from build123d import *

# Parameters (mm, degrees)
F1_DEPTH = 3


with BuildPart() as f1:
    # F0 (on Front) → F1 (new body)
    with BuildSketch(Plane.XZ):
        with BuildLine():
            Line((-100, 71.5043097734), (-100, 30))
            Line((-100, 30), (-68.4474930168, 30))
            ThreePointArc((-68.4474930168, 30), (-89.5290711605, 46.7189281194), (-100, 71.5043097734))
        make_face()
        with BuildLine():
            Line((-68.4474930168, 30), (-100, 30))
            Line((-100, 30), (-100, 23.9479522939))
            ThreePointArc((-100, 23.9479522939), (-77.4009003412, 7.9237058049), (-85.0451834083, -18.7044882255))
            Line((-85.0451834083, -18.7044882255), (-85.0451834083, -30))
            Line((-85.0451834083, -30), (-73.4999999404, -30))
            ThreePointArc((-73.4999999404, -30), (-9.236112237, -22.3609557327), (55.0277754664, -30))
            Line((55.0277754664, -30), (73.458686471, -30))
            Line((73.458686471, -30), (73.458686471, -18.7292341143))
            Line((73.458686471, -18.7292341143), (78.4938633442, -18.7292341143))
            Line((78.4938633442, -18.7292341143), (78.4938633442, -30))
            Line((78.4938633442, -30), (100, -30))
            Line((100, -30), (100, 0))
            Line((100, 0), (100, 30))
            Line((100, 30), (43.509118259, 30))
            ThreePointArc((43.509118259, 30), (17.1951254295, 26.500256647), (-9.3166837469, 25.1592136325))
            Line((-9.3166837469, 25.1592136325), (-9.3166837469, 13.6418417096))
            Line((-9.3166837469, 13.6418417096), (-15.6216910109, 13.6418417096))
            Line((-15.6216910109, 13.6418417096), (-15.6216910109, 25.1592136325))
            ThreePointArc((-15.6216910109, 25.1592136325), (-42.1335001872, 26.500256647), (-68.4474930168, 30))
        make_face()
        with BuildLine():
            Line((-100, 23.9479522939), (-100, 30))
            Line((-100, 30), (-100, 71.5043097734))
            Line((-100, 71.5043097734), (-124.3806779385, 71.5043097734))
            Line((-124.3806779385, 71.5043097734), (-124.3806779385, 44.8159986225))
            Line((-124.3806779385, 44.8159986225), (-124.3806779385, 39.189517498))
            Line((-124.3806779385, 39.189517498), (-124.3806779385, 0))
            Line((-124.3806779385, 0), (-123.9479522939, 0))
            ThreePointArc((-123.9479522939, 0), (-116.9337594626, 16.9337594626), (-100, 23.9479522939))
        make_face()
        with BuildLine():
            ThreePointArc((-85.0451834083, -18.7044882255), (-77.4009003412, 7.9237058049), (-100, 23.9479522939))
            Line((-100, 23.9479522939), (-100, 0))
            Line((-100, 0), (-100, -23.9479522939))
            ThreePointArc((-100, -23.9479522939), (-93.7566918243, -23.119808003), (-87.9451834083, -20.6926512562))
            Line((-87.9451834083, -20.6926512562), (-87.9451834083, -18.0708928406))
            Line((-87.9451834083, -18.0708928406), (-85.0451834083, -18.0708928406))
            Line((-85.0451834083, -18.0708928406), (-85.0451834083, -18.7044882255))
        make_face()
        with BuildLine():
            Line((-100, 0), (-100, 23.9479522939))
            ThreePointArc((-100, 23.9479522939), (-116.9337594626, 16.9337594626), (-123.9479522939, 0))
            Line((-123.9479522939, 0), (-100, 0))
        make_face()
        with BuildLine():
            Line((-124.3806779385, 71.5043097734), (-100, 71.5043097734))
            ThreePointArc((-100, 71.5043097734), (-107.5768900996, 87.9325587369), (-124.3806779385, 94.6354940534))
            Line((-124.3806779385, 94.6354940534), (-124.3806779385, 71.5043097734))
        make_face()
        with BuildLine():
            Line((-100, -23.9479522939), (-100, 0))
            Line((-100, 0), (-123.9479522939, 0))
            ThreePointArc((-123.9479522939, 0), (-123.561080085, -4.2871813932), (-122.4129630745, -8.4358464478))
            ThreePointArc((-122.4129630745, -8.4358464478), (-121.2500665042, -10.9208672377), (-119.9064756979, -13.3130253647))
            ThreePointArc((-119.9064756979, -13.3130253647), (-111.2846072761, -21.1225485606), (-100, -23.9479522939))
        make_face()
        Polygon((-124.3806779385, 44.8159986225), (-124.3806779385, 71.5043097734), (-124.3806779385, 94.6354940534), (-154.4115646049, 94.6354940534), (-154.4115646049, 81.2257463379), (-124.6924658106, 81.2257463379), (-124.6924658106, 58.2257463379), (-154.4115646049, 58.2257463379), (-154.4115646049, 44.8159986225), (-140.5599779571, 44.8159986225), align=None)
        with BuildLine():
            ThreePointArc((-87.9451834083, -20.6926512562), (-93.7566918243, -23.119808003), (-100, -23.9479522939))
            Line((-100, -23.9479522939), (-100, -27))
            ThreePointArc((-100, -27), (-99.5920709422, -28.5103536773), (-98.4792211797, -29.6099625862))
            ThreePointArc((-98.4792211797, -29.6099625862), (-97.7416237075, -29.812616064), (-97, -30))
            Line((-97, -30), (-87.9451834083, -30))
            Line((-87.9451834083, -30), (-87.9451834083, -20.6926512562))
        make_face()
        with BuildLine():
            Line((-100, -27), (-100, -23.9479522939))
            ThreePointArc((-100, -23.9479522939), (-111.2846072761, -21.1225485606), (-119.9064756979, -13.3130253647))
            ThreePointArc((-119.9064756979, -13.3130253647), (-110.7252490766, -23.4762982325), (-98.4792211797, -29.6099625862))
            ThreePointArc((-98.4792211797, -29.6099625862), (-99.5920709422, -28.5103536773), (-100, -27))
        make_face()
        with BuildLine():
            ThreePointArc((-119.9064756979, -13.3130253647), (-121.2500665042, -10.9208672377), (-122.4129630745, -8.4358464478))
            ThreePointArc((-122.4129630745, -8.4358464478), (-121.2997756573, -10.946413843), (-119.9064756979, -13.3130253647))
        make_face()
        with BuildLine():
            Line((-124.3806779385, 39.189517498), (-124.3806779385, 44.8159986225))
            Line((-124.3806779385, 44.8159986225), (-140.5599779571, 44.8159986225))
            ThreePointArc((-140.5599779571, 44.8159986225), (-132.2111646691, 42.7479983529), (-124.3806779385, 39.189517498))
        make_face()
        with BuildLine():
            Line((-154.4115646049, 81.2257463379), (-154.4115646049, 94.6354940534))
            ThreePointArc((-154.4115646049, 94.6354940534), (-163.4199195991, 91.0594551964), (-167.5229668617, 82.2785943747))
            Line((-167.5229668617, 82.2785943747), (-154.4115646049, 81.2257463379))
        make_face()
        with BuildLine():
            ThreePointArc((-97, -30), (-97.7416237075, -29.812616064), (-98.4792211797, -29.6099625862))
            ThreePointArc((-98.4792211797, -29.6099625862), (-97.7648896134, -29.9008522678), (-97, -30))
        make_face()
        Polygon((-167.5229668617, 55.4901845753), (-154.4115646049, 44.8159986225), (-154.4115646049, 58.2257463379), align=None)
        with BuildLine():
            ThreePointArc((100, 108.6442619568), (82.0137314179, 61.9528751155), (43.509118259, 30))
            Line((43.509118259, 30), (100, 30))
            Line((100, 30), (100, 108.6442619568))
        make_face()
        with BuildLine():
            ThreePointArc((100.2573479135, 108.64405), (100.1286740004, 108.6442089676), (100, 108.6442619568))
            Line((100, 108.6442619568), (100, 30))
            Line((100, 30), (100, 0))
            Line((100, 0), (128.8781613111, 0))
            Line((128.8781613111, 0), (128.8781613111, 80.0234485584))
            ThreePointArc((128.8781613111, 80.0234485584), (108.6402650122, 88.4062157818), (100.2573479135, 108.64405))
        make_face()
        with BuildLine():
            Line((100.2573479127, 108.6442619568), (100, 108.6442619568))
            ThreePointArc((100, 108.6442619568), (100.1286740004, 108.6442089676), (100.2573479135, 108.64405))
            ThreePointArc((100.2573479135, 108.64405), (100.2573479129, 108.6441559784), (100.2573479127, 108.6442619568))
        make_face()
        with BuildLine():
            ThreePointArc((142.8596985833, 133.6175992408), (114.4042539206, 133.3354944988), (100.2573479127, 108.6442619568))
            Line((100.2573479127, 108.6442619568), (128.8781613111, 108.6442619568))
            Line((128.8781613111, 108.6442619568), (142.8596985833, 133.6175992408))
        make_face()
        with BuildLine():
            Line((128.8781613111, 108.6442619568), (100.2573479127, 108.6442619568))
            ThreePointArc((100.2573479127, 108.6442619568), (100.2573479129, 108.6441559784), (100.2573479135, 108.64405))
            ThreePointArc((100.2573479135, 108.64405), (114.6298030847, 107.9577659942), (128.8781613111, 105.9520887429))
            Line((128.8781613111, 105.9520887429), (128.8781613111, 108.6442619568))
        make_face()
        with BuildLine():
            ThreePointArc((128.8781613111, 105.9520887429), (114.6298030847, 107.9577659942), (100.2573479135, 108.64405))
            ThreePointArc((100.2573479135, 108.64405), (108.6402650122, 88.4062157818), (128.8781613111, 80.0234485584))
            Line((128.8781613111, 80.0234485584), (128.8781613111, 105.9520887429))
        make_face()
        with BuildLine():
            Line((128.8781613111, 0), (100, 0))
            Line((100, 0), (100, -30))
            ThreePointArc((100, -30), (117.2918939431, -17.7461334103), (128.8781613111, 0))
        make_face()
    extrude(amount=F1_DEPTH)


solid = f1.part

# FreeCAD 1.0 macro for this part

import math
import FreeCAD as App
import Part
import Sketcher

doc = App.newDocument("Part")
body = doc.addObject("PartDesign::Body", "Body")

sketch1 = body.newObject("Sketcher::SketchObject", "Sketch")
sketch1.AttachmentSupport = (doc.getObject("XZ_Plane"), [""])
sketch1.MapMode = "FlatFace"
sketch1.addGeometry([
    Part.LineSegment(App.Vector(-85.05, -30, 0), App.Vector(-73.5, -30, 0)),
    Part.ArcOfCircle(Part.Circle(App.Vector(-9.24, -296.49, 0), App.Vector(0, 0, 1), 274.13), math.radians(76), math.radians(104)),
    Part.LineSegment(App.Vector(55.03, -30, 0), App.Vector(73.46, -30, 0)),
    Part.LineSegment(App.Vector(73.46, -30, 0), App.Vector(73.46, -18.73, 0)),
    Part.LineSegment(App.Vector(73.46, -18.73, 0), App.Vector(78.49, -18.73, 0)),
    Part.LineSegment(App.Vector(78.49, -18.73, 0), App.Vector(78.49, -30, 0)),
    Part.LineSegment(App.Vector(78.49, -30, 0), App.Vector(100, -30, 0)),
    Part.ArcOfCircle(Part.Circle(App.Vector(76.43, 21.59, 0), App.Vector(0, 0, 1), 56.72), math.radians(-65), math.radians(-22)),
    Part.LineSegment(App.Vector(128.88, 0, 0), App.Vector(128.88, 108.64, 0)),
    Part.LineSegment(App.Vector(128.88, 108.64, 0), App.Vector(142.86, 133.62, 0)),
    Part.ArcOfCircle(Part.Circle(App.Vector(128.88, 108.64, 0), App.Vector(0, 0, 1), 28.62), math.radians(61), math.radians(180)),
    Part.LineSegment(App.Vector(100.26, 108.64, 0), App.Vector(100, 108.64, 0)),
    Part.ArcOfCircle(Part.Circle(App.Vector(1.53, 119.77, 0), App.Vector(0, 0, 1), 99.1), math.radians(-65), math.radians(-6)),
    Part.ArcOfCircle(Part.Circle(App.Vector(-12.47, 350.22, 0), App.Vector(0, 0, 1), 325.07), math.radians(-89.44), math.radians(-80.08)),
    Part.LineSegment(App.Vector(-9.32, 25.16, 0), App.Vector(-9.32, 13.64, 0)),
    Part.LineSegment(App.Vector(-9.32, 13.64, 0), App.Vector(-15.62, 13.64, 0)),
    Part.LineSegment(App.Vector(-15.62, 13.64, 0), App.Vector(-15.62, 25.16, 0)),
    Part.ArcOfCircle(Part.Circle(App.Vector(-12.47, 350.22, 0), App.Vector(0, 0, 1), 325.07), math.radians(-99.92), math.radians(-90.56)),
    Part.ArcOfCircle(Part.Circle(App.Vector(-46.29, 79.59, 0), App.Vector(0, 0, 1), 54.32), math.radians(-171), math.radians(-114)),
    Part.ArcOfCircle(Part.Circle(App.Vector(-124.38, 70.22, 0), App.Vector(0, 0, 1), 24.41), math.radians(3), math.radians(90)),
    Part.LineSegment(App.Vector(-124.38, 94.64, 0), App.Vector(-154.41, 94.64, 0)),
    Part.ArcOfCircle(Part.Circle(App.Vector(-154.41, 81.5, 0), App.Vector(0, 0, 1), 13.13), math.radians(90), math.radians(177)),
    Part.LineSegment(App.Vector(-167.52, 82.28, 0), App.Vector(-154.41, 81.23, 0)),
    Part.LineSegment(App.Vector(-154.41, 81.23, 0), App.Vector(-124.69, 81.23, 0)),
    Part.LineSegment(App.Vector(-124.69, 81.23, 0), App.Vector(-124.69, 58.23, 0)),
    Part.LineSegment(App.Vector(-124.69, 58.23, 0), App.Vector(-154.41, 58.23, 0)),
    Part.LineSegment(App.Vector(-154.41, 58.23, 0), App.Vector(-167.52, 55.49, 0)),
    Part.LineSegment(App.Vector(-167.52, 55.49, 0), App.Vector(-154.41, 44.82, 0)),
    Part.LineSegment(App.Vector(-154.41, 44.82, 0), App.Vector(-140.56, 44.82, 0)),
    Part.ArcOfCircle(Part.Circle(App.Vector(-147.61, -1.53, 0), App.Vector(0, 0, 1), 46.88), math.radians(60), math.radians(81)),
    Part.LineSegment(App.Vector(-124.38, 39.19, 0), App.Vector(-124.38, 0, 0)),
    Part.LineSegment(App.Vector(-124.38, 0, 0), App.Vector(-123.95, 0, 0)),
    Part.ArcOfCircle(Part.Circle(App.Vector(-100, 0, 0), App.Vector(0, 0, 1), 23.95), math.radians(180), math.radians(201)),
    Part.ArcOfCircle(Part.Circle(App.Vector(-100, 0, 0), App.Vector(0, 0, 1), 23.95), math.radians(-159.37), math.radians(-146.23)),
    Part.ArcOfCircle(Part.Circle(App.Vector(-88.29, 6.02, 0), App.Vector(0, 0, 1), 37.05), math.radians(-149), math.radians(-106)),
    Part.ArcOfCircle(Part.Circle(App.Vector(-97, -27, 0), App.Vector(0, 0, 1), 3), math.radians(-120), math.radians(-90)),
    Part.LineSegment(App.Vector(-97, -30, 0), App.Vector(-87.95, -30, 0)),
    Part.LineSegment(App.Vector(-87.95, -30, 0), App.Vector(-87.95, -18.07, 0)),
    Part.LineSegment(App.Vector(-87.95, -18.07, 0), App.Vector(-85.05, -18.07, 0)),
    Part.LineSegment(App.Vector(-85.05, -18.07, 0), App.Vector(-85.05, -30, 0)),
], False)
sketch1.addConstraint([
    Sketcher.Constraint("Coincident", 0, 2, 1, 2),
    Sketcher.Constraint("Coincident", 1, 1, 2, 1),
    Sketcher.Constraint("Coincident", 2, 2, 3, 1),
    Sketcher.Constraint("Coincident", 3, 2, 4, 1),
    Sketcher.Constraint("Coincident", 4, 2, 5, 1),
    Sketcher.Constraint("Coincident", 5, 2, 6, 1),
    Sketcher.Constraint("Coincident", 6, 2, 7, 1),
    Sketcher.Constraint("Coincident", 7, 2, 8, 1),
    Sketcher.Constraint("Coincident", 8, 2, 9, 1),
    Sketcher.Constraint("Coincident", 9, 2, 10, 1),
    Sketcher.Constraint("Coincident", 10, 2, 11, 1),
    Sketcher.Constraint("Coincident", 11, 2, 12, 2),
    Sketcher.Constraint("Coincident", 12, 1, 13, 2),
    Sketcher.Constraint("Coincident", 13, 1, 14, 1),
    Sketcher.Constraint("Coincident", 14, 2, 15, 1),
    Sketcher.Constraint("Coincident", 15, 2, 16, 1),
    Sketcher.Constraint("Coincident", 16, 2, 17, 2),
    Sketcher.Constraint("Coincident", 17, 1, 18, 2),
    Sketcher.Constraint("Coincident", 18, 1, 19, 1),
    Sketcher.Constraint("Tangent", 19, 2, 20, 1),
    Sketcher.Constraint("Tangent", 20, 2, 21, 1),
    Sketcher.Constraint("Coincident", 21, 2, 22, 1),
    Sketcher.Constraint("Coincident", 22, 2, 23, 1),
    Sketcher.Constraint("Coincident", 23, 2, 24, 1),
    Sketcher.Constraint("Coincident", 24, 2, 25, 1),
    Sketcher.Constraint("Coincident", 25, 2, 26, 1),
    Sketcher.Constraint("Coincident", 26, 2, 27, 1),
    Sketcher.Constraint("Coincident", 27, 2, 28, 1),
    Sketcher.Constraint("Coincident", 28, 2, 29, 2),
    Sketcher.Constraint("Coincident", 29, 1, 30, 1),
    Sketcher.Constraint("Coincident", 30, 2, 31, 1),
    Sketcher.Constraint("Coincident", 31, 2, 32, 1),
    Sketcher.Constraint("Tangent", 32, 2, 33, 1),
    Sketcher.Constraint("Coincident", 33, 2, 34, 1),
    Sketcher.Constraint("Coincident", 34, 2, 35, 1),
    Sketcher.Constraint("Tangent", 35, 2, 36, 1),
    Sketcher.Constraint("Coincident", 36, 2, 37, 1),
    Sketcher.Constraint("Coincident", 37, 2, 38, 1),
    Sketcher.Constraint("Coincident", 38, 2, 39, 1),
    Sketcher.Constraint("Coincident", 39, 2, 0, 1),
    Sketcher.Constraint("Horizontal", 0),
    Sketcher.Constraint("Horizontal", 2),
    Sketcher.Constraint("Vertical", 3),
    Sketcher.Constraint("Horizontal", 4),
    Sketcher.Constraint("Vertical", 5),
    Sketcher.Constraint("Horizontal", 6),
    Sketcher.Constraint("Vertical", 8),
    Sketcher.Constraint("Horizontal", 11),
    Sketcher.Constraint("Vertical", 14),
    Sketcher.Constraint("Horizontal", 15),
    Sketcher.Constraint("Vertical", 16),
    Sketcher.Constraint("Horizontal", 20),
    Sketcher.Constraint("Horizontal", 23),
    Sketcher.Constraint("Vertical", 24),
    Sketcher.Constraint("Horizontal", 25),
    Sketcher.Constraint("Horizontal", 28),
    Sketcher.Constraint("Vertical", 30),
    Sketcher.Constraint("Horizontal", 31),
    Sketcher.Constraint("Horizontal", 36),
    Sketcher.Constraint("Vertical", 37),
    Sketcher.Constraint("Horizontal", 38),
    Sketcher.Constraint("Vertical", 39),
    Sketcher.Constraint("Coincident", 17, 3, 13, 3),
    Sketcher.Constraint("Coincident", 8, 2, 10, 3),
    Sketcher.Constraint("Equal", 13, 17),
    Sketcher.Constraint("Equal", 32, 33),
    Sketcher.Constraint("PointOnObject", 32, 3, -1),
    Sketcher.Constraint("PointOnObject", 7, 2, -1),
    Sketcher.Constraint("PointOnObject", 30, 2, -1),
    Sketcher.Constraint("Horizontal", 0, 2, 1, 1),
    Sketcher.Constraint("Horizontal", 2, 2, 5, 2),
    Sketcher.Constraint("Horizontal", 8, 2, 10, 2),
    Sketcher.Constraint("Horizontal", 13, 1, 16, 2),
    Sketcher.Constraint("Horizontal", 12, 1, 17, 1),
    Sketcher.Constraint("Horizontal", 6, 2, 35, 2),
    Sketcher.Constraint("Vertical", 6, 2, 11, 2),
    Sketcher.Constraint("Vertical", 33, 3, 18, 1),
    Sketcher.Constraint("Vertical", 20, 2, 22, 2),
    Sketcher.Constraint("Vertical", 22, 2, 25, 2),
    Sketcher.Constraint("Vertical", 21, 2, 26, 2),
    Sketcher.Constraint("Vertical", 25, 2, 27, 2),
    Sketcher.Constraint("Vertical", 19, 2, 29, 1),
    Sketcher.Constraint("Radius", 35, 3.0),
    Sketcher.Constraint("DistanceY", 24, 2, 24, 1, 23.0),
    Sketcher.Constraint("DistanceX", 38, 1, 38, 2, 2.9),
    Sketcher.Constraint("DistanceX", 32, 3, -1, 1, 100.0),
    Sketcher.Constraint("DistanceX", 35, 3, -1, 1, 97.0),
    Sketcher.Constraint("DistanceY", 35, 3, -1, 1, 27.0),
    Sketcher.Constraint("DistanceX", -1, 1, 6, 2, 100.0),
    Sketcher.Constraint("DistanceY", -1, 1, 12, 1, 30.0),
    Sketcher.Constraint("DistanceX", 0, 2, -1, 1, 73.5),
    Sketcher.Constraint("Radius", 1, 274.131299),
    Sketcher.Constraint("Radius", 12, 99.10057),
    Sketcher.Constraint("Radius", 13, 325.07256),
    Sketcher.Constraint("Radius", 29, 46.880648),
    Sketcher.Constraint("DistanceX", 23, 1, 23, 2, 29.719099),
    Sketcher.Constraint("DistanceY", -1, 1, 27, 2, 44.815999),
    Sketcher.Constraint("Radius", 7, 56.716254),
    Sketcher.Constraint("Radius", 10, 28.620813),
    Sketcher.Constraint("Radius", 18, 54.315643),
    Sketcher.Constraint("Radius", 19, 24.414425),
    Sketcher.Constraint("Radius", 21, 13.134437),
    Sketcher.Constraint("Radius", 32, 23.947952),
    Sketcher.Constraint("Radius", 34, 37.052896),
    Sketcher.Constraint("DistanceX", 2, 1, 2, 2, 18.430911),
    Sketcher.Constraint("DistanceY", 8, 1, 8, 2, 108.644262),
    Sketcher.Constraint("DistanceY", 14, 2, 14, 1, 11.517372),
    Sketcher.Constraint("DistanceX", 34, 3, -1, 1, 88.294499),
    Sketcher.Constraint("DistanceX", -1, 1, 9, 2, 142.859699),
    Sketcher.Constraint("DistanceY", -1, 1, 9, 2, 133.617599),
    Sketcher.Constraint("DistanceY", 29, 3, 7, 3, 23.118602),
    Sketcher.Constraint("DistanceY", 34, 3, 18, 3, 73.574801),
    Sketcher.Constraint("DistanceY", 18, 1, 18, 3, 8.086201),
    Sketcher.Constraint("DistanceY", 21, 2, 20, 2, 12.3569),
    Sketcher.Constraint("DistanceX", 28, 2, 19, 3, 16.1793),
    Sketcher.Constraint("DistanceX", 0, 1, 0, 2, 11.545183),
    Sketcher.Constraint("DistanceX", 4, 1, 4, 2, 5.035177),
    Sketcher.Constraint("DistanceX", 6, 1, 6, 2, 21.506137),
    Sketcher.Constraint("DistanceX", 15, 2, 15, 1, 6.305007),
    Sketcher.Constraint("DistanceX", 20, 2, 20, 1, 30.030887),
    Sketcher.Constraint("DistanceX", 31, 1, 31, 2, 0.432726),
    Sketcher.Constraint("DistanceY", 3, 1, 3, 2, 11.270766),
    Sketcher.Constraint("DistanceY", 37, 1, 37, 2, 11.929107),
    Sketcher.Constraint("DistanceY", -1, 1, 18, 3, 79.590511),
    Sketcher.Constraint("DistanceX", -1, 1, 12, 1, 43.509118),
    Sketcher.Constraint("DistanceY", 22, 2, 21, 3, 0.275311),
    Sketcher.Constraint("DistanceY", 26, 2, 25, 2, 2.735562),
    Sketcher.Constraint("DistanceX", 31, 2, 32, 2, 1.534989),
])
pad1 = body.newObject("PartDesign::Pad", "Pad")
pad1.Profile = sketch1
pad1.Length = 3

doc.recompute()
